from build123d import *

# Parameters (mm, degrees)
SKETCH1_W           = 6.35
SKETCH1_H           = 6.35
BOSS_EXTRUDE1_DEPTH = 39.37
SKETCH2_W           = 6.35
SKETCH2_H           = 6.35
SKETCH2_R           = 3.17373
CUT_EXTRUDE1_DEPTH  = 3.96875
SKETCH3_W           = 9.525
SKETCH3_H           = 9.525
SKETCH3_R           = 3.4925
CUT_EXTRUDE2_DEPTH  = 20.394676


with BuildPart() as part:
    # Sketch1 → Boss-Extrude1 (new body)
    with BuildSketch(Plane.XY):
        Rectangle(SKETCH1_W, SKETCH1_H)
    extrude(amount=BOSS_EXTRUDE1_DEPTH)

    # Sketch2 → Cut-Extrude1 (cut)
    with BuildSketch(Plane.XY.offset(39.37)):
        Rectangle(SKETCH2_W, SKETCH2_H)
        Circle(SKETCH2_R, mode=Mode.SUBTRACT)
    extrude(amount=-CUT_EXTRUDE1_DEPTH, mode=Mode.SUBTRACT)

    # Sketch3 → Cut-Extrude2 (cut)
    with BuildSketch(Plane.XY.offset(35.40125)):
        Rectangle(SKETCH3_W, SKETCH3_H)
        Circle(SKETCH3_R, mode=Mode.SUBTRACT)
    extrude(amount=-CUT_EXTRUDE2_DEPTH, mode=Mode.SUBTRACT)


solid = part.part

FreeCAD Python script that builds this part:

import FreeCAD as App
import Part
import Sketcher
from FreeCAD import Vector
Q = App.Units.Quantity


def add_polygon(sketch, points):
    """Adds a closed chain of lines whose ends are joined by coincident constraints."""
    first, n = sketch.GeometryCount, len(points)
    for a, b in zip(points, points[1:] + points[:1]):
        sketch.addGeometry(Part.LineSegment(App.Vector(*a, 0), App.Vector(*b, 0)), False)
    for i in range(n):
        sketch.addConstraint(Sketcher.Constraint("Coincident", first + i, 2, first + (i + 1) % n, 1))

doc = App.newDocument("Part")
params = doc.addObject("Spreadsheet::Sheet", "Params")
for row, (alias, value) in enumerate([
    ("sketch1_width", "0.25 in"),
    ("pad1_length", "1.55 in"),
    ("sketch2_width", "0.25 in"),
    ("pocket1_length", "0.15625 in"),
    ("sketch3_diameter", "0.275 in"),
    ("sketch3_width", "0.375 in"),
    ("pocket2_length", "20.394676 mm"),
], start=1):
    params.set(f"A{row}", alias)
    params.set(f"B{row}", "=" + value)
    params.setAlias(f"B{row}", alias)

body = doc.addObject("PartDesign::Body", "Body")

sketch1 = doc.addObject("Sketcher::SketchObject", "Sketch")
body.addObject(sketch1)
sketch1.AttachmentSupport = (doc.XY_Plane, [""])
sketch1.MapMode = "FlatFace"
add_polygon(sketch1, [(-3, 3), (-3, -3), (3, -3), (3, 3)])
sketch1.addConstraint([
    Sketcher.Constraint("Vertical", 0),
    Sketcher.Constraint("Horizontal", 1),
    Sketcher.Constraint("Vertical", 2),
    Sketcher.Constraint("Horizontal", 3),
    Sketcher.Constraint("Symmetric", 0, 2, 2, 2, -1, 1),
    Sketcher.Constraint("Equal", 3, 0),
    Sketcher.Constraint("DistanceX", 1, 1, 1, 2, Q("0.25 in")),
])
sketch1.setExpression("Constraints[10]", "Params.sketch1_width")
pad1 = doc.addObject("PartDesign::Pad", "Pad")
body.addObject(pad1)
pad1.Profile = sketch1
pad1.setExpression("Length", "Params.pad1_length")

sketch2 = doc.addObject("Sketcher::SketchObject", "Sketch001")
body.addObject(sketch2)
sketch2.AttachmentSupport = (doc.XY_Plane, [""])
sketch2.MapMode = "FlatFace"
sketch2.AttachmentOffset = App.Placement(Vector(0, 0, 1.55 * 25.4), App.Rotation())
add_polygon(sketch2, [(-3.2, 3.2), (-3.2, -3.2), (3.2, -3.2), (3.2, 3.2)])
sketch2.addGeometry(Part.Circle(Vector(0, 0, 0), Vector(0, 0, 1), 3.2), False)
sketch2.addConstraint([
    Sketcher.Constraint("Vertical", 0),
    Sketcher.Constraint("Horizontal", 1),
    Sketcher.Constraint("Vertical", 2),
    Sketcher.Constraint("Horizontal", 3),
    Sketcher.Constraint("Coincident", 4, 3, -1, 1),
    Sketcher.Constraint("Symmetric", 0, 2, 2, 2, -1, 1),
    Sketcher.Constraint("Equal", 3, 0),
    Sketcher.Constraint("Diameter", 4, Q("0.2499 in")),
    Sketcher.Constraint("DistanceX", 1, 1, 1, 2, Q("0.25 in")),
])
sketch2.setExpression("Constraints[12]", "Params.sketch2_width")
pocket1 = doc.addObject("PartDesign::Pocket", "Pocket")
body.addObject(pocket1)
pocket1.Profile = sketch2
pocket1.setExpression("Length", "Params.pocket1_length")

sketch3 = doc.addObject("Sketcher::SketchObject", "Sketch002")
body.addObject(sketch3)
sketch3.AttachmentSupport = (doc.XY_Plane, [""])
sketch3.MapMode = "FlatFace"
sketch3.AttachmentOffset = App.Placement(Vector(0, 0, 35.40125), App.Rotation())
add_polygon(sketch3, [(-4.8, 4.8), (-4.8, -4.8), (4.8, -4.8), (4.8, 4.8)])
sketch3.addGeometry(Part.Circle(Vector(0, 0, 0), Vector(0, 0, 1), 3.5), False)
sketch3.addConstraint([
    Sketcher.Constraint("Vertical", 0),
    Sketcher.Constraint("Horizontal", 1),
    Sketcher.Constraint("Vertical", 2),
    Sketcher.Constraint("Horizontal", 3),
    Sketcher.Constraint("Coincident", 4, 3, -1, 1),
    Sketcher.Constraint("Symmetric", 0, 2, 2, 2, -1, 1),
    Sketcher.Constraint("Equal", 3, 0),
    Sketcher.Constraint("Diameter", 4, Q("0.275 in")),
    Sketcher.Constraint("DistanceX", 1, 1, 1, 2, Q("0.375 in")),
])
sketch3.setExpression("Constraints[11]", "Params.sketch3_diameter")
sketch3.setExpression("Constraints[12]", "Params.sketch3_width")
pocket2 = doc.addObject("PartDesign::Pocket", "Pocket001")
body.addObject(pocket2)
pocket2.Profile = sketch3
pocket2.setExpression("Length", "Params.pocket2_length")

doc.recompute()
